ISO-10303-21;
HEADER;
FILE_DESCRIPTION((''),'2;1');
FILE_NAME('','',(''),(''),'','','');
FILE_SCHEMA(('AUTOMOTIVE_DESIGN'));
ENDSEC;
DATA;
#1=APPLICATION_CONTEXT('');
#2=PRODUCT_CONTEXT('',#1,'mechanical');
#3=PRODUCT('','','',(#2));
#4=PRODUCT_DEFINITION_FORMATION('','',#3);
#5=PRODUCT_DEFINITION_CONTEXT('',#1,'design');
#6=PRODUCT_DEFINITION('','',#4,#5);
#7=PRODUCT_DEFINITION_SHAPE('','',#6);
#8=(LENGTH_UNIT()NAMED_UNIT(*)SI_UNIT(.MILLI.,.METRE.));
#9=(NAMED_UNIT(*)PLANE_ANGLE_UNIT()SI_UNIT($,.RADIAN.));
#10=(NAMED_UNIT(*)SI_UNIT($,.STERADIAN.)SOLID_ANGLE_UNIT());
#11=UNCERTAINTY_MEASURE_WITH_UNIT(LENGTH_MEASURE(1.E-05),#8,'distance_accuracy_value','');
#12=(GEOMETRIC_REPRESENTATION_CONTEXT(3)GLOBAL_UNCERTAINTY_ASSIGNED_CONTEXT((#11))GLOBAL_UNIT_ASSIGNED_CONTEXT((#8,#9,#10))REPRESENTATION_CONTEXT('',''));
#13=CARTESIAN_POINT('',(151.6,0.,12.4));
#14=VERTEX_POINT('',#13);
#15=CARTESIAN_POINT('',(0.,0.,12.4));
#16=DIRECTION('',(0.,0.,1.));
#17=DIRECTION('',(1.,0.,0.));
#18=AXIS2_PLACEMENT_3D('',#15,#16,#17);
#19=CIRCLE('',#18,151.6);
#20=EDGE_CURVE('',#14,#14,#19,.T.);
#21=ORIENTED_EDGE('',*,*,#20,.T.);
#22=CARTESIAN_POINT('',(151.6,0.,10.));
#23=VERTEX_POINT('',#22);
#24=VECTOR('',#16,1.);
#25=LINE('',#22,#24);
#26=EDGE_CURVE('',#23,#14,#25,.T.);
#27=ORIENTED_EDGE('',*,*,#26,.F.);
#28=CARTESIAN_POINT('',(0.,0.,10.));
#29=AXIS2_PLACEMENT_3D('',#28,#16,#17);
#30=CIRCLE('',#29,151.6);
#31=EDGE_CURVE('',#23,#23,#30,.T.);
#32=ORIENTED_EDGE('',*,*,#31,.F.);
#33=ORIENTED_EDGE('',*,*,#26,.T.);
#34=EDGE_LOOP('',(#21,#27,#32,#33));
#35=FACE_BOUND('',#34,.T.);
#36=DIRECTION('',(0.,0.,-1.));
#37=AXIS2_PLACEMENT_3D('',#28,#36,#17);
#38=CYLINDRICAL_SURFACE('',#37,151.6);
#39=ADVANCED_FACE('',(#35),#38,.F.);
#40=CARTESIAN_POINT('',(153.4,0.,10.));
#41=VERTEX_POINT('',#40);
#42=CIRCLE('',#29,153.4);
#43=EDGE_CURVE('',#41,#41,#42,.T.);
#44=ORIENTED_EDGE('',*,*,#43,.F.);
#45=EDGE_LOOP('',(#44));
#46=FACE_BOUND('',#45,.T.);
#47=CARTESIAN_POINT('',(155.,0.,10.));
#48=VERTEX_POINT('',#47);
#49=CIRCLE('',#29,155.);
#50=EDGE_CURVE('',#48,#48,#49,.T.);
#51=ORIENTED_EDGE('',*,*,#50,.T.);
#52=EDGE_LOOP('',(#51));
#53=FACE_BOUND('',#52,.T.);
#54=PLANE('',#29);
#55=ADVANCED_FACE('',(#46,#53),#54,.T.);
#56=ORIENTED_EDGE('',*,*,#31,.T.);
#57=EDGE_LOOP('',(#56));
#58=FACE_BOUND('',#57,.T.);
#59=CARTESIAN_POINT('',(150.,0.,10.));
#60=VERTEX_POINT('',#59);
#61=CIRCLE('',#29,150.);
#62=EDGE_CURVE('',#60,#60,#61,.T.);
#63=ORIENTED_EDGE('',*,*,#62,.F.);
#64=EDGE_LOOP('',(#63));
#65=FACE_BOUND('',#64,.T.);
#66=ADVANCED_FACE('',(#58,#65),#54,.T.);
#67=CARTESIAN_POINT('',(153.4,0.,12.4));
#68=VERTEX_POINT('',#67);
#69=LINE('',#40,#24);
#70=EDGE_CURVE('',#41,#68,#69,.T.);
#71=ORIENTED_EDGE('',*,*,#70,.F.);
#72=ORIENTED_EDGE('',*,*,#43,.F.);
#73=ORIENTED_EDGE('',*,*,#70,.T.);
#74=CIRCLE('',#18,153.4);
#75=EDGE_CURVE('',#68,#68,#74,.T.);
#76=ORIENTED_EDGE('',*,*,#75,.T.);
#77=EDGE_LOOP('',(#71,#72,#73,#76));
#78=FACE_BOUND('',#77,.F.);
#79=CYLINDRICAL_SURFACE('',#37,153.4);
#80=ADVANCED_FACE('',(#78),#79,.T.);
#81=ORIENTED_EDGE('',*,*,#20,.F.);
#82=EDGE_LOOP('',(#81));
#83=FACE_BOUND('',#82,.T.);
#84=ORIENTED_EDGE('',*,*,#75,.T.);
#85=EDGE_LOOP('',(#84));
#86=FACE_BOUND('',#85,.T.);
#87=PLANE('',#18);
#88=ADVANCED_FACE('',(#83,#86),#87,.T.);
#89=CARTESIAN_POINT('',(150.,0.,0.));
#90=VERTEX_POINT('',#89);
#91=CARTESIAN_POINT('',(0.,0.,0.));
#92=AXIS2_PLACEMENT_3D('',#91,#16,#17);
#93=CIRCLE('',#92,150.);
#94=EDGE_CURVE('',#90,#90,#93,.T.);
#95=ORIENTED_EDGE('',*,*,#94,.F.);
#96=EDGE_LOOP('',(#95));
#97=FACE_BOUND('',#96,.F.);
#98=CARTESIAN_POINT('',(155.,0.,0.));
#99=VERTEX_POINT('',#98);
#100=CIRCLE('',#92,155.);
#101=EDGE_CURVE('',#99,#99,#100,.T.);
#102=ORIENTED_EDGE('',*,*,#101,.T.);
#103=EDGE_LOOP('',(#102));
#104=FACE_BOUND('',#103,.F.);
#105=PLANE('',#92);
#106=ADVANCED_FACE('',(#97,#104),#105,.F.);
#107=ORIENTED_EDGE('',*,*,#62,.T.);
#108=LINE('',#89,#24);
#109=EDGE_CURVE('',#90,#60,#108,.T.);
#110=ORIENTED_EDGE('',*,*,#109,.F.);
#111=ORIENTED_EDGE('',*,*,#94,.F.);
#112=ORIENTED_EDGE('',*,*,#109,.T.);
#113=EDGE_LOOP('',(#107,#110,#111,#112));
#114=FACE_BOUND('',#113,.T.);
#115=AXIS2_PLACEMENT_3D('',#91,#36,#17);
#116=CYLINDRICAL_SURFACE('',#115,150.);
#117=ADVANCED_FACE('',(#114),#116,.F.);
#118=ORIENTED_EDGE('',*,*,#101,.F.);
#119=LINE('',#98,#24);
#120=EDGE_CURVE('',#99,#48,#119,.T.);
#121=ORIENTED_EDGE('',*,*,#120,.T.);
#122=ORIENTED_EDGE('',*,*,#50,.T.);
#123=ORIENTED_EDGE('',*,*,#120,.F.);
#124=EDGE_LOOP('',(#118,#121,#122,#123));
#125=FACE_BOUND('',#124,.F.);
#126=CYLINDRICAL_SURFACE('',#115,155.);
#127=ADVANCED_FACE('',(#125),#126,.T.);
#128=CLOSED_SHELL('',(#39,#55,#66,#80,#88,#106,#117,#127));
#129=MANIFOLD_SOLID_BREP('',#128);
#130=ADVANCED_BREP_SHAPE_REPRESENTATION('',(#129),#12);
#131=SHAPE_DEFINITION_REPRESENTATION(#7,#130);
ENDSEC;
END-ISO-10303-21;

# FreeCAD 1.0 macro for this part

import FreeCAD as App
import Part
import Sketcher
Q = App.Units.Quantity

doc = App.newDocument("Part")
body = doc.addObject("PartDesign::Body", "Body")

# Sketch on XY plane
sketch1 = body.newObject("Sketcher::SketchObject", "Sketch")
sketch1.AttachmentSupport = (doc.getObject("XY_Plane"), [""])
sketch1.MapMode = "FlatFace"
sketch1.addGeometry([
    Part.Circle(App.Vector(0, 0, 0), App.Vector(0, 0, 1), 155),
    Part.Circle(App.Vector(0, 0, 0), App.Vector(0, 0, 1), 150),
], False)
sketch1.addConstraint([
    Sketcher.Constraint("Coincident", 0, 3, -1, 1),
    Sketcher.Constraint("Coincident", 1, 3, -1, 1),
    Sketcher.Constraint("Diameter", 0, Q("310 mm")),
    Sketcher.Constraint("Diameter", 1, Q("300 mm")),
])
pad1 = body.newObject("PartDesign::Pad", "Pad")
pad1.Profile = sketch1
pad1.Length = 10

# Sketch on XY plane
sketch2 = body.newObject("Sketcher::SketchObject", "Sketch001")
sketch2.AttachmentSupport = (doc.getObject("XY_Plane"), [""])
sketch2.MapMode = "FlatFace"
sketch2.AttachmentOffset = App.Placement(App.Vector(0, 0, 10), App.Rotation())
sketch2.addGeometry([
    Part.Circle(App.Vector(0, 0, 0), App.Vector(0, 0, 1), 153),
    Part.Circle(App.Vector(0, 0, 0), App.Vector(0, 0, 1), 152),
], False)
sketch2.addConstraint([
    Sketcher.Constraint("Coincident", 0, 3, -1, 1),
    Sketcher.Constraint("Coincident", 1, 3, -1, 1),
    Sketcher.Constraint("Diameter", 0, Q("306.8 mm")),
    Sketcher.Constraint("Diameter", 1, Q("303.2 mm")),
])
pad2 = body.newObject("PartDesign::Pad", "Pad001")
pad2.Profile = sketch2
pad2.Length = 2.4

doc.recompute()
